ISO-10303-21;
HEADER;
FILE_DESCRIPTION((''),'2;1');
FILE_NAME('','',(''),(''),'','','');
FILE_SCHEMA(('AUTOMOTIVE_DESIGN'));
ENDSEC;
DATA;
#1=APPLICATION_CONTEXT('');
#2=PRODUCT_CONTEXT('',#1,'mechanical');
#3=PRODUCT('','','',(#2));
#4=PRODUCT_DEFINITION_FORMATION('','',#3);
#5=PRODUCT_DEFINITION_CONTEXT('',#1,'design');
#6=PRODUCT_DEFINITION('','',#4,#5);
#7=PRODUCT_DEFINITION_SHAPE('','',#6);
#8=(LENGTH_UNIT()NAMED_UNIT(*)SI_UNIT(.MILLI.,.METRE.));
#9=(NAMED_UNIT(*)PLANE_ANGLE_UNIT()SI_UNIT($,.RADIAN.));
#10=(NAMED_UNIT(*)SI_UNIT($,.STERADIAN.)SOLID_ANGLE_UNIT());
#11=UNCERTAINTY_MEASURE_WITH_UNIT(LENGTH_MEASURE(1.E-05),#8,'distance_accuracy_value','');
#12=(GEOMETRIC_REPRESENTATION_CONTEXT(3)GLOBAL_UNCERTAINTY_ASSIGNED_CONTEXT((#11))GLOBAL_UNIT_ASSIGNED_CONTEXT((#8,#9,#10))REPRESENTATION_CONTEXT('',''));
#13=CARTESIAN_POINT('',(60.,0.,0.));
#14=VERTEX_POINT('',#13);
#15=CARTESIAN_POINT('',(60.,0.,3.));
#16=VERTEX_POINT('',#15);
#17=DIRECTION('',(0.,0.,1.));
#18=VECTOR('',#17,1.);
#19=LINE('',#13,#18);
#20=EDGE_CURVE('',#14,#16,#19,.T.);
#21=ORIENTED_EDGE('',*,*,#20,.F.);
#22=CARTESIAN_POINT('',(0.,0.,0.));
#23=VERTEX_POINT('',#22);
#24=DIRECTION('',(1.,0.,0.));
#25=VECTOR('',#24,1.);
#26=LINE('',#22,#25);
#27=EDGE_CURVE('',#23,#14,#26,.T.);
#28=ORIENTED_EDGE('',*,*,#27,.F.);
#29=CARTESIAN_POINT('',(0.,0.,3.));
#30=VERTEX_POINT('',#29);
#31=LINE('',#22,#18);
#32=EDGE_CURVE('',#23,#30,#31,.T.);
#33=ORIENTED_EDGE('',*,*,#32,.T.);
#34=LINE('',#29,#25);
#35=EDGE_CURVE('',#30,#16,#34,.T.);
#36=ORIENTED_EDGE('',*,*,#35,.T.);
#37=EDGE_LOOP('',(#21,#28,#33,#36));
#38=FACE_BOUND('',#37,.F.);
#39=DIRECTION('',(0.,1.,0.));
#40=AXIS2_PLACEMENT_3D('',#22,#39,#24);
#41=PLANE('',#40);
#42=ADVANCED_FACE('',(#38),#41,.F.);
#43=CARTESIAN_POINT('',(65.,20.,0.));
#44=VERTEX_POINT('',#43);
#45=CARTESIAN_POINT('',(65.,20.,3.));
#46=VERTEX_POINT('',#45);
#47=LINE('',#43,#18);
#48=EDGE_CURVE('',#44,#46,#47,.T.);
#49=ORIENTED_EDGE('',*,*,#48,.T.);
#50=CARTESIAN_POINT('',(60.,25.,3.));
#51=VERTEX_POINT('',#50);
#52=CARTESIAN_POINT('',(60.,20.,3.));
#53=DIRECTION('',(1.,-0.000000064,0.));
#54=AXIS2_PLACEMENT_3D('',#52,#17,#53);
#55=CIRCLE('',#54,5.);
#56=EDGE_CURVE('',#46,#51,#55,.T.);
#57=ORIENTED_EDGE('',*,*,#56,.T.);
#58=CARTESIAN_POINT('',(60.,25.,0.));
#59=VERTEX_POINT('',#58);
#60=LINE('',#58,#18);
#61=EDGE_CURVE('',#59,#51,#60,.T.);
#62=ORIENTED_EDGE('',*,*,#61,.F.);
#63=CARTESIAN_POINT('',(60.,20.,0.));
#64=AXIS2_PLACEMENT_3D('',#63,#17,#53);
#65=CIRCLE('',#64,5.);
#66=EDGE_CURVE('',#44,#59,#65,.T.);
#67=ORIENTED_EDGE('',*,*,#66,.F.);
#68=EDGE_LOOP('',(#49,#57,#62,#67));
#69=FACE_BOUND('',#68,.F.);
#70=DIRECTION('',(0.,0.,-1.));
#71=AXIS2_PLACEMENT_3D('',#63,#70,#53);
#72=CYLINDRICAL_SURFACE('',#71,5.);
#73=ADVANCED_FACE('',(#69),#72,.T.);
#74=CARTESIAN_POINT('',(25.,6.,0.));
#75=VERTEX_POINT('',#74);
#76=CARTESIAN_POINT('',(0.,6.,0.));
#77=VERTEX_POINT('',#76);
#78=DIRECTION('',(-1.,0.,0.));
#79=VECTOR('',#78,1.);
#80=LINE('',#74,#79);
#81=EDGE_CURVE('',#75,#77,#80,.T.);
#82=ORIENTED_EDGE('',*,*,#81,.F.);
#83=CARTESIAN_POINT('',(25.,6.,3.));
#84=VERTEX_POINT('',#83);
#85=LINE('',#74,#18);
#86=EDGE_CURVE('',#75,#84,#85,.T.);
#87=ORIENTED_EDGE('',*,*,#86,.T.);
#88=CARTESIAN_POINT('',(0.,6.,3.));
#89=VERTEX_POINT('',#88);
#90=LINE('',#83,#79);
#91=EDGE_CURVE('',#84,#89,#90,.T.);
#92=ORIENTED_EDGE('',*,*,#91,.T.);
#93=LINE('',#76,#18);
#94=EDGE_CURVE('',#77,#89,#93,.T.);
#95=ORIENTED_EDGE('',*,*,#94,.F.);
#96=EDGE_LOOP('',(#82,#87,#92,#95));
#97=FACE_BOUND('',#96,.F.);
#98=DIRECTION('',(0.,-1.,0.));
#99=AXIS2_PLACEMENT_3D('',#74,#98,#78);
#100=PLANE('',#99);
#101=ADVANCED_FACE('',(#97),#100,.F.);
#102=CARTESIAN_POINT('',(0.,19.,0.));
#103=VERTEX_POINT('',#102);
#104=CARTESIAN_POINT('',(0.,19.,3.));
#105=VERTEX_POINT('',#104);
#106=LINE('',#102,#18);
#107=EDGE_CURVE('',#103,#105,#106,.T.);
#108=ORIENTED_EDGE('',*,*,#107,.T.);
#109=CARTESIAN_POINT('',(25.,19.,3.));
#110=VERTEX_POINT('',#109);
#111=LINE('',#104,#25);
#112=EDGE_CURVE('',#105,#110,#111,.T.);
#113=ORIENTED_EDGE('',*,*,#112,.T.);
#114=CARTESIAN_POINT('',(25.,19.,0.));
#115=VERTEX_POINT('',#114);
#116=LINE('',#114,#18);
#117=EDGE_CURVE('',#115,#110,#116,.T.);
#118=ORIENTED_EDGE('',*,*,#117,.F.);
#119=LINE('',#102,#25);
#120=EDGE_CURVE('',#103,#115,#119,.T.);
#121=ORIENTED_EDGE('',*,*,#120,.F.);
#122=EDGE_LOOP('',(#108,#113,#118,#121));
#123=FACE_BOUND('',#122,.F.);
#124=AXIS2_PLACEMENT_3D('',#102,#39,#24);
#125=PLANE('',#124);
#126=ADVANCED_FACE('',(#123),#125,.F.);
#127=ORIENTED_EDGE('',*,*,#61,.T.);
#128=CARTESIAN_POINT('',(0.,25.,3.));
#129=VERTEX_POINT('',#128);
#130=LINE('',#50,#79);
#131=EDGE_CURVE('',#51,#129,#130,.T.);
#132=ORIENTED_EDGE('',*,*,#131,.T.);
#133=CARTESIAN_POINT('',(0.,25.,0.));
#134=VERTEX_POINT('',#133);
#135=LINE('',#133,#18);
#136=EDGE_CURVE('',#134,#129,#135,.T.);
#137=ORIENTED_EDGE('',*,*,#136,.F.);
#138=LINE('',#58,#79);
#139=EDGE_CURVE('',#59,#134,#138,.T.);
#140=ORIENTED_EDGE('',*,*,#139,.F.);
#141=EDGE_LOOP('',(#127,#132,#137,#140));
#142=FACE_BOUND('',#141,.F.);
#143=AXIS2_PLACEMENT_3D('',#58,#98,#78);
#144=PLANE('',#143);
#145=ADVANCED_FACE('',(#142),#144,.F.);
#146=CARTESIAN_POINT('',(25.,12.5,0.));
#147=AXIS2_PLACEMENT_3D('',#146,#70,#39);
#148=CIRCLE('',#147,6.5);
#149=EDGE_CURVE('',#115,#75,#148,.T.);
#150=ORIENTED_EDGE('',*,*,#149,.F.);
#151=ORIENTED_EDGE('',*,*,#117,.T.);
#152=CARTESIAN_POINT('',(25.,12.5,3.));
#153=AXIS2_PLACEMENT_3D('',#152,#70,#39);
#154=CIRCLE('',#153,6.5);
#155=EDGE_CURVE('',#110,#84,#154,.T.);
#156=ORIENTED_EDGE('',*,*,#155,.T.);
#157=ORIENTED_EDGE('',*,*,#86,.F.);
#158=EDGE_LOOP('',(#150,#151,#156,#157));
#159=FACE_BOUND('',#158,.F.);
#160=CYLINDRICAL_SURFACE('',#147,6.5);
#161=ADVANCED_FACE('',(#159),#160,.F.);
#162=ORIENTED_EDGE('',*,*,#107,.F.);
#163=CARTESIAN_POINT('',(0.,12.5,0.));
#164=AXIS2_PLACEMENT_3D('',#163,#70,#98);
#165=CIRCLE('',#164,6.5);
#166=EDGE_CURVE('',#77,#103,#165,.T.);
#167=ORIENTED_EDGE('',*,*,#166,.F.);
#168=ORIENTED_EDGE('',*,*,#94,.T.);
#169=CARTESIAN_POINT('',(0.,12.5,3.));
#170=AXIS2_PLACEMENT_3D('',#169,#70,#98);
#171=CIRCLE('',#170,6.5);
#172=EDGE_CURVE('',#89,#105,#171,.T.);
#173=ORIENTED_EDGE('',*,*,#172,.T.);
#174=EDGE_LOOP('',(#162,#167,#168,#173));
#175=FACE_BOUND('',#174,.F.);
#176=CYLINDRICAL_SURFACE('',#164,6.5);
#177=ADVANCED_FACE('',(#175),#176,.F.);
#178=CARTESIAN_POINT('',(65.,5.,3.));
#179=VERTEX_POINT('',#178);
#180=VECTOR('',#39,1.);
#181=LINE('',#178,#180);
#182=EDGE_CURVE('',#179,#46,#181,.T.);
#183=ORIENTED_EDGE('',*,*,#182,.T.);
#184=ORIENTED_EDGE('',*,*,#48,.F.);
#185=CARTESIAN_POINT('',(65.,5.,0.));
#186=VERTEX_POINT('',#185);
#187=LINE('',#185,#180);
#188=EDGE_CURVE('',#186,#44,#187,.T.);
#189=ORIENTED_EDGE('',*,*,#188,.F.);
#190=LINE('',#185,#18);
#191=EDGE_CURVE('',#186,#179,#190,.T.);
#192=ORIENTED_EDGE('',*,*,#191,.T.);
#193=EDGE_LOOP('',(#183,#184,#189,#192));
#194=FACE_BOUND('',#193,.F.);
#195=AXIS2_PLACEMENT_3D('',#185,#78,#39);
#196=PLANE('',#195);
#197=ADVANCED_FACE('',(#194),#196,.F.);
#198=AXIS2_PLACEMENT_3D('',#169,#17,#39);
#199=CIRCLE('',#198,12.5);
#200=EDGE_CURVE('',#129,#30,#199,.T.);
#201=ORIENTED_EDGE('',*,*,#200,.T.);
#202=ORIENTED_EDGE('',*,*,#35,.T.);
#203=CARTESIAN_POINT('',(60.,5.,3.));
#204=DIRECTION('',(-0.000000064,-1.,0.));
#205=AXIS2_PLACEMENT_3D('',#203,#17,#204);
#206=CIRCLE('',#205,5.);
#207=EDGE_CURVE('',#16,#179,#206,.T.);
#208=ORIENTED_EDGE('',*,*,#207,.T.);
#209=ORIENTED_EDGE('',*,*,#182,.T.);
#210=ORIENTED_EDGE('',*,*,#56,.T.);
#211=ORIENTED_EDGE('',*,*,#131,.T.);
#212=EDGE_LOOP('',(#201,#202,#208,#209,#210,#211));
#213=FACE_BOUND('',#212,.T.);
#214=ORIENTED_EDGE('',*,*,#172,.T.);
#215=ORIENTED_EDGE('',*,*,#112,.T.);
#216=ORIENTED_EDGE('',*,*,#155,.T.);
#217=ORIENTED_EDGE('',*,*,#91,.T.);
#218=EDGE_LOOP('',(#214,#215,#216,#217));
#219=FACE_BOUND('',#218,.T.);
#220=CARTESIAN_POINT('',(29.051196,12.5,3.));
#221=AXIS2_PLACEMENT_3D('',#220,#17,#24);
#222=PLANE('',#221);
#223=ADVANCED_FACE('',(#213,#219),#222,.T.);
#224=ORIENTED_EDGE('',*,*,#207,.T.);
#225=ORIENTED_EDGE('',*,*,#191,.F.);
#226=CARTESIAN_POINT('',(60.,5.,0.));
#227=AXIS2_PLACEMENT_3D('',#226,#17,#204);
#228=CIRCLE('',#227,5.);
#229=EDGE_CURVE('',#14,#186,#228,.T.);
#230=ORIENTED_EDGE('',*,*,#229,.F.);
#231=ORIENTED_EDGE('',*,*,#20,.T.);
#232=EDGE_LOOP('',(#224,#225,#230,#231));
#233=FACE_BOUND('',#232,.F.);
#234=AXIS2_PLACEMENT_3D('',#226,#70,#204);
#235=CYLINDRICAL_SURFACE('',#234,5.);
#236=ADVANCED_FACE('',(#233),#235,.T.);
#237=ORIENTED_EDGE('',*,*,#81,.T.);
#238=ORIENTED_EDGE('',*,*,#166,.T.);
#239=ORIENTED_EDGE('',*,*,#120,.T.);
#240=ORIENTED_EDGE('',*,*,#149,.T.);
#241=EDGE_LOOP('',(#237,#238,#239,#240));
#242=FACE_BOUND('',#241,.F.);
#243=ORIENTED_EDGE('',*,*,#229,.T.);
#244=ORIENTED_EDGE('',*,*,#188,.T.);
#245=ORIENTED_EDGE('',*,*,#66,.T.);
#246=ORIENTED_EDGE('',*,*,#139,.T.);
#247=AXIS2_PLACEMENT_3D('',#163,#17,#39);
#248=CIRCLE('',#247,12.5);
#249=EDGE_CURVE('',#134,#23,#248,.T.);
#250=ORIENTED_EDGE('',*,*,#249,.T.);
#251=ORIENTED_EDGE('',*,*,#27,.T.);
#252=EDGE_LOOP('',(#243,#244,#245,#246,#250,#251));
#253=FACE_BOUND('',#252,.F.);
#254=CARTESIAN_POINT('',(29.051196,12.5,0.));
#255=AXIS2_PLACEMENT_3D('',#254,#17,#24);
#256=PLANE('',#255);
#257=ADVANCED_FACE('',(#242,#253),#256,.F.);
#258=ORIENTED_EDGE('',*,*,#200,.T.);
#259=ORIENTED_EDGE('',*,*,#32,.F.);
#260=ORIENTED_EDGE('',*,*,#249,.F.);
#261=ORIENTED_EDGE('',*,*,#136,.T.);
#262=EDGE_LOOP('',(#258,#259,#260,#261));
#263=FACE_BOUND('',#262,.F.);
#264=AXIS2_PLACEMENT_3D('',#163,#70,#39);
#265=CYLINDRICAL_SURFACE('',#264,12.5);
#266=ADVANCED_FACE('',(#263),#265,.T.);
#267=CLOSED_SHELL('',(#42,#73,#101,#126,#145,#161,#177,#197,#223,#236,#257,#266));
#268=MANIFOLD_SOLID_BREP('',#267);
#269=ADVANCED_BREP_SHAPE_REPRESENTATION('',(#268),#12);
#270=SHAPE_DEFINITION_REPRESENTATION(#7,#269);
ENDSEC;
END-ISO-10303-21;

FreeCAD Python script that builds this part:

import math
import FreeCAD as App
import Part
import Sketcher

doc = App.newDocument("Part")
body = doc.addObject("PartDesign::Body", "Body")

# Sketch on XY plane
sketch1 = doc.addObject("Sketcher::SketchObject", "Sketch")
body.addObject(sketch1)
sketch1.AttachmentSupport = (doc.XY_Plane, [""])
sketch1.MapMode = "FlatFace"
sketch1.addGeometry(Part.LineSegment(App.Vector(0, 0, 0), App.Vector(60, 0, 0)), False)
sketch1.addGeometry(Part.ArcOfCircle(Part.Circle(App.Vector(60, 5, 0), App.Vector(0, 0, 1), 5), math.radians(-90.000004), math.radians(0.000004)), False)
sketch1.addGeometry(Part.LineSegment(App.Vector(65, 5, 0), App.Vector(65, 20, 0)), False)
sketch1.addGeometry(Part.ArcOfCircle(Part.Circle(App.Vector(60, 20, 0), App.Vector(0, 0, 1), 5), math.radians(-0.000004), math.radians(90.000004)), False)
sketch1.addGeometry(Part.LineSegment(App.Vector(60, 25, 0), App.Vector(0, 25, 0)), False)
sketch1.addGeometry(Part.ArcOfCircle(Part.Circle(App.Vector(0, 12.5, 0), App.Vector(0, 0, 1), 12.5), math.radians(90), math.radians(270)), False)
sketch1.addGeometry(Part.LineSegment(App.Vector(0, 19, 0), App.Vector(25, 19, 0)), False)
sketch1.addGeometry(Part.ArcOfCircle(Part.Circle(App.Vector(25, 12.5, 0), App.Vector(0, 0, 1), 6.5), math.radians(-90), math.radians(90)), False)
sketch1.addGeometry(Part.LineSegment(App.Vector(25, 6, 0), App.Vector(0, 6, 0)), False)
sketch1.addGeometry(Part.ArcOfCircle(Part.Circle(App.Vector(0, 12.5, 0), App.Vector(0, 0, 1), 6.5), math.radians(90), math.radians(270)), False)
sketch1.addConstraint(Sketcher.Constraint("Tangent", 0, 2, 1, 1))
sketch1.addConstraint(Sketcher.Constraint("Tangent", 1, 2, 2, 1))
sketch1.addConstraint(Sketcher.Constraint("Tangent", 2, 2, 3, 1))
sketch1.addConstraint(Sketcher.Constraint("Tangent", 3, 2, 4, 1))
sketch1.addConstraint(Sketcher.Constraint("Tangent", 4, 2, 5, 1))
sketch1.addConstraint(Sketcher.Constraint("Tangent", 5, 2, 0, 1))
sketch1.addConstraint(Sketcher.Constraint("Tangent", 6, 2, 7, 2))
sketch1.addConstraint(Sketcher.Constraint("Tangent", 7, 1, 8, 1))
sketch1.addConstraint(Sketcher.Constraint("Tangent", 8, 2, 9, 2))
sketch1.addConstraint(Sketcher.Constraint("Tangent", 9, 1, 6, 1))
sketch1.addConstraint(Sketcher.Constraint("Horizontal", 0))
sketch1.addConstraint(Sketcher.Constraint("Vertical", 2))
sketch1.addConstraint(Sketcher.Constraint("Horizontal", 4))
sketch1.addConstraint(Sketcher.Constraint("Horizontal", 6))
sketch1.addConstraint(Sketcher.Constraint("Horizontal", 8))
sketch1.addConstraint(Sketcher.Constraint("Coincident", 5, 2, -1, 1))
sketch1.addConstraint(Sketcher.Constraint("Coincident", 9, 3, 5, 3))
sketch1.addConstraint(Sketcher.Constraint("Equal", 1, 3))
sketch1.addConstraint(Sketcher.Constraint("Radius", 1, 5.0))
sketch1.addConstraint(Sketcher.Constraint("Radius", 5, 12.5))
sketch1.addConstraint(Sketcher.Constraint("Radius", 7, 6.5))
sketch1.addConstraint(Sketcher.Constraint("DistanceX", 0, 1, 0, 2, 60.0))
sketch1.addConstraint(Sketcher.Constraint("DistanceX", 6, 1, 6, 2, 25.0))
pad1 = doc.addObject("PartDesign::Pad", "Pad")
body.addObject(pad1)
pad1.Profile = sketch1
pad1.Length = 3

doc.recompute()
